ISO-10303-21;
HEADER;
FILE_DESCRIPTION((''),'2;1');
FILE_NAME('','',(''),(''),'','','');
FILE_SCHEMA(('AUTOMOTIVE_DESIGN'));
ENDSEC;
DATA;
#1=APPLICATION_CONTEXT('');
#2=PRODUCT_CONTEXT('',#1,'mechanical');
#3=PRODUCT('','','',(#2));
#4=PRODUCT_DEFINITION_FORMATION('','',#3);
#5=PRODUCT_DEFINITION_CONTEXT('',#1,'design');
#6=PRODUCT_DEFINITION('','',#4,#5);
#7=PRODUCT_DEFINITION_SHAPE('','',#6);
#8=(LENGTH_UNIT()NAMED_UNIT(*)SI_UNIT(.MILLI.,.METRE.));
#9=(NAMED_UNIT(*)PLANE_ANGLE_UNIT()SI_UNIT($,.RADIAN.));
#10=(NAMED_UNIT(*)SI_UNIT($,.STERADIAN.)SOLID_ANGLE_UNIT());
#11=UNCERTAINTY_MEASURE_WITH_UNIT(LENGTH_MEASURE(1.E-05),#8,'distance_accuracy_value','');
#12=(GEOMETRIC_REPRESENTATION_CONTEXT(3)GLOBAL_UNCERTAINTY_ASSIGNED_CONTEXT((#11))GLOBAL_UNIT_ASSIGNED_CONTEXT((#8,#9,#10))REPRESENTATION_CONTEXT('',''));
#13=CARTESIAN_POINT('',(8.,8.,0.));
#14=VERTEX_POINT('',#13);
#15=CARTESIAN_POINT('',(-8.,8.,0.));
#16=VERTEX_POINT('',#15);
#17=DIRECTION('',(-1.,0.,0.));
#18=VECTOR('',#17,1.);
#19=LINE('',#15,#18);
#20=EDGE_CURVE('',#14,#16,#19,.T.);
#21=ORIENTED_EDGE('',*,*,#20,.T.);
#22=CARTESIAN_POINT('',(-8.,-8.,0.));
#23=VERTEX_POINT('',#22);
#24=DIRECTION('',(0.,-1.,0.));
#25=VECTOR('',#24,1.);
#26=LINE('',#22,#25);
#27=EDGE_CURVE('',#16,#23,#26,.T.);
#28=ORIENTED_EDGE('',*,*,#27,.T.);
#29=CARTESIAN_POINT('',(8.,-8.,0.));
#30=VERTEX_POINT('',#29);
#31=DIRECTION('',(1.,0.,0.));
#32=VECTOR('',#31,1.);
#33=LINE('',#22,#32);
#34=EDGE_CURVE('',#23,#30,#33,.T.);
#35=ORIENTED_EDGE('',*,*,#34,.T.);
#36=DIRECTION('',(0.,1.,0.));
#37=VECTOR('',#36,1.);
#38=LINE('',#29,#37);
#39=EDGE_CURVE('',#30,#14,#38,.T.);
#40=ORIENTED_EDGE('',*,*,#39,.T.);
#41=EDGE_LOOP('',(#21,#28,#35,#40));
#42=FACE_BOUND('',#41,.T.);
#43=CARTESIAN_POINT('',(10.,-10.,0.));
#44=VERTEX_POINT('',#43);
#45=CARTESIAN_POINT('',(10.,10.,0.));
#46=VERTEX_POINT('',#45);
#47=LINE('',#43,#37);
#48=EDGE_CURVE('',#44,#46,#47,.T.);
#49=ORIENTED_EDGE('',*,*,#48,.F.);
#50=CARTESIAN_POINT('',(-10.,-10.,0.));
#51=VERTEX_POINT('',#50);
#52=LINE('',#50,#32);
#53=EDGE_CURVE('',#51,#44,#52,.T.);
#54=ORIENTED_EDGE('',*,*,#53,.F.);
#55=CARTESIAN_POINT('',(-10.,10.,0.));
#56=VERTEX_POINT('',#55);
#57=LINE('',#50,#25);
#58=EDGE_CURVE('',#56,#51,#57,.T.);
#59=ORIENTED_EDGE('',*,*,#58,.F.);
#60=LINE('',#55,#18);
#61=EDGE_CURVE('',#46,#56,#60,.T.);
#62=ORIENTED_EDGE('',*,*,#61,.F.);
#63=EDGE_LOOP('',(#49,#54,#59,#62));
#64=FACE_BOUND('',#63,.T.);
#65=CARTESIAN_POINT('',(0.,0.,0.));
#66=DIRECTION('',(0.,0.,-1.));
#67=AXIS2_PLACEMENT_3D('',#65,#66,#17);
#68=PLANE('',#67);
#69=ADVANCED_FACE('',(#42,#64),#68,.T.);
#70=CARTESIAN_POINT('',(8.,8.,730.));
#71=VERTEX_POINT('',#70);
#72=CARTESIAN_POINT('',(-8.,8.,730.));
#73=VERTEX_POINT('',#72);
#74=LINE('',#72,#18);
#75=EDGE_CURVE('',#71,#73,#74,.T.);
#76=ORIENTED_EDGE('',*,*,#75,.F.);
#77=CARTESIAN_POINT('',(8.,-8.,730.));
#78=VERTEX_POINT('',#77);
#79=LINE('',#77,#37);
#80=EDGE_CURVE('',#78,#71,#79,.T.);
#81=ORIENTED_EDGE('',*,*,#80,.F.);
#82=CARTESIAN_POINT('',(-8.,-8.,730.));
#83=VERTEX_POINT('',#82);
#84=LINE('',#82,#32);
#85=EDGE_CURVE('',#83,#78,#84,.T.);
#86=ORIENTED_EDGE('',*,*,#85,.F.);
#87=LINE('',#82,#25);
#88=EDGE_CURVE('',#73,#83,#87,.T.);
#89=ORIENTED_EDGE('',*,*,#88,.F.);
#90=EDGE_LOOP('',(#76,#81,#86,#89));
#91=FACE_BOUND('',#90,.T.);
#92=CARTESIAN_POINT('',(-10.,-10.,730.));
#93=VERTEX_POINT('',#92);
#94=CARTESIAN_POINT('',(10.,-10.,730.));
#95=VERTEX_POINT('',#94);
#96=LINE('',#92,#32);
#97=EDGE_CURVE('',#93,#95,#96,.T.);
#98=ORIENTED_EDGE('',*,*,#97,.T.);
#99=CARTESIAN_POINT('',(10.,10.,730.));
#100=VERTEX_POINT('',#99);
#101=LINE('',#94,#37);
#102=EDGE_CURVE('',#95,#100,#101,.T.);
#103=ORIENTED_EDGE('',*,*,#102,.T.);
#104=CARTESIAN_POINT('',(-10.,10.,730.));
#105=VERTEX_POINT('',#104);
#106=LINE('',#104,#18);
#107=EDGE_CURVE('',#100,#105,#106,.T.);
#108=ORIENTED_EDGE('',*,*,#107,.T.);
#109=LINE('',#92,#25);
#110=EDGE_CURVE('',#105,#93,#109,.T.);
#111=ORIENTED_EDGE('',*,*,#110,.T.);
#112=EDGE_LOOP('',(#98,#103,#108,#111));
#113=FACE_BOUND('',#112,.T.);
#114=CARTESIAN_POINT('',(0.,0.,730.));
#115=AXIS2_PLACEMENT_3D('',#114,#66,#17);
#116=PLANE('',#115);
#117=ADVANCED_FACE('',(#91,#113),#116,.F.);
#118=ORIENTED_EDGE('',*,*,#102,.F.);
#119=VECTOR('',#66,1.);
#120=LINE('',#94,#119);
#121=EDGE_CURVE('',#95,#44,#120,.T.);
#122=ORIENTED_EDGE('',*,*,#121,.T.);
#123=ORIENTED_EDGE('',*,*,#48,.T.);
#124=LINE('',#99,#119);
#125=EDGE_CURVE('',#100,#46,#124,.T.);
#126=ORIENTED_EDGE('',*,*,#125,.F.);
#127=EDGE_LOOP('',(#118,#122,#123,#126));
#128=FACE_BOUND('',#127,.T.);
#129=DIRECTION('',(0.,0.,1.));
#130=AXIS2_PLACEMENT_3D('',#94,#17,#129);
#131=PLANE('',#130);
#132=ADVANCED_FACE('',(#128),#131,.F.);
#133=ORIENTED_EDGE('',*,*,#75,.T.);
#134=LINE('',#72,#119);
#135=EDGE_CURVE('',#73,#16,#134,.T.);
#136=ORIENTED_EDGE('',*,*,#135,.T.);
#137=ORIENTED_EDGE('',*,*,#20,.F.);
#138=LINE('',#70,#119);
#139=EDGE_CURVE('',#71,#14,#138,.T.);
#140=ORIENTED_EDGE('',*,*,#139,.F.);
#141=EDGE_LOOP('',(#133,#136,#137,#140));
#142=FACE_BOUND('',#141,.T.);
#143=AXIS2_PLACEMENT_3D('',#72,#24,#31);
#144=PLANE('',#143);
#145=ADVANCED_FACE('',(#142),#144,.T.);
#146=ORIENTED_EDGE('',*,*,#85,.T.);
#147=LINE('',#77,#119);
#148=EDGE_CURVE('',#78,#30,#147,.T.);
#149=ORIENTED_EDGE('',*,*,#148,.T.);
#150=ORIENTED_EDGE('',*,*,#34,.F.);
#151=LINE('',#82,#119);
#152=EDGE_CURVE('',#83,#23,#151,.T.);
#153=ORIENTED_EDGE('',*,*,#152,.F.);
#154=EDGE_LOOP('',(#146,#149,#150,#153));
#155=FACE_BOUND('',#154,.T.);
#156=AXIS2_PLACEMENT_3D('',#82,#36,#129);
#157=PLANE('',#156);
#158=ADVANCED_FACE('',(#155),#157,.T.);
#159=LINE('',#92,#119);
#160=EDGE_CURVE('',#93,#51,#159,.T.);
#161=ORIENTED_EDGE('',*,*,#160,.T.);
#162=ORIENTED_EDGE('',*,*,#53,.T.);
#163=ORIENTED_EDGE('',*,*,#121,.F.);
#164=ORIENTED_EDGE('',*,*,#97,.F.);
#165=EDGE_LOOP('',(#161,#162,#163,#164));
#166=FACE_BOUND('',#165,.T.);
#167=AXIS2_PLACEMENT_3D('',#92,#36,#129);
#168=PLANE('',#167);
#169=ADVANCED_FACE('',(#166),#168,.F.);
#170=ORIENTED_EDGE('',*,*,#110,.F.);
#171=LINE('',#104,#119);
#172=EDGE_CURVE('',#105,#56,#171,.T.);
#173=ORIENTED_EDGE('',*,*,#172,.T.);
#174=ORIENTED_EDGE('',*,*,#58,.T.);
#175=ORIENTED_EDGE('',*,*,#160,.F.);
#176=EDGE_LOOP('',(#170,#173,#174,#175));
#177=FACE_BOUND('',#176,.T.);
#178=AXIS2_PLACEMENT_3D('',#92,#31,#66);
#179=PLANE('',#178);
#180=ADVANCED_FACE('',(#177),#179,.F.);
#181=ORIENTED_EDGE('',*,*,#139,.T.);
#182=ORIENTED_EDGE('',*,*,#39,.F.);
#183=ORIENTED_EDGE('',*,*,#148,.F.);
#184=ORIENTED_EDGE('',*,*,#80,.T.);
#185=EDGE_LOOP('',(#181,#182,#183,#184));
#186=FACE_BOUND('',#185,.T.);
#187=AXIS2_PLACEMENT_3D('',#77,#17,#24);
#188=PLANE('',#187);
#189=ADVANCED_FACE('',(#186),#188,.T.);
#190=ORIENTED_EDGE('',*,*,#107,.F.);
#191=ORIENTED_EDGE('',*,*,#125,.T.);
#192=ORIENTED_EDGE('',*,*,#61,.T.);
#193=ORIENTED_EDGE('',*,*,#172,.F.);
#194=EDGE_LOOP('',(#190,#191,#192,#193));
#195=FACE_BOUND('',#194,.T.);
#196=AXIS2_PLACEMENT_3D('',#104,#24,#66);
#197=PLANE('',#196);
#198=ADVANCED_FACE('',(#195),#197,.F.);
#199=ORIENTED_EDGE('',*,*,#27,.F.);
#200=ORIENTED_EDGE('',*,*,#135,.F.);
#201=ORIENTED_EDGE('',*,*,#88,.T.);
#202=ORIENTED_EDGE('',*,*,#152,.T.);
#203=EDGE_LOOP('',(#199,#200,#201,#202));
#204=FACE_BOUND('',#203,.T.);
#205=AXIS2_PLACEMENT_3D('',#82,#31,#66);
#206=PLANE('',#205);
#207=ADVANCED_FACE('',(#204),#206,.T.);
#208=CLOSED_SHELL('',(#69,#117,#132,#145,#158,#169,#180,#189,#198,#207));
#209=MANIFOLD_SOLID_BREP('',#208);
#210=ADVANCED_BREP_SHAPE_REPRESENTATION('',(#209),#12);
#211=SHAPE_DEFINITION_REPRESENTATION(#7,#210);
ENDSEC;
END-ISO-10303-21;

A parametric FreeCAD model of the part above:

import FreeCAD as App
import Part
import Sketcher

V = App.Vector


def add_polygon(sketch, points):
    """Adds a closed chain of lines whose ends are joined by coincident constraints."""
    first, n = sketch.GeometryCount, len(points)
    for a, b in zip(points, points[1:] + points[:1]):
        sketch.addGeometry(Part.LineSegment(App.Vector(*a, 0), App.Vector(*b, 0)), False)
    for i in range(n):
        sketch.addConstraint(Sketcher.Constraint("Coincident", first + i, 2, first + (i + 1) % n, 1))

doc = App.newDocument("Part")
params = doc.addObject("Spreadsheet::Sheet", "Params")
for row, (alias, value) in enumerate([
    ("sketch1_width", "20 mm"),
    ("sketch1_width2", "16 mm"),
    ("pad1_length", "730 mm"),
], start=1):
    params.set(f"A{row}", alias)
    params.set(f"B{row}", "=" + value)
    params.setAlias(f"B{row}", alias)

body = doc.addObject("PartDesign::Body", "Body")

sketch1 = doc.addObject("Sketcher::SketchObject", "Sketch")
body.addObject(sketch1)
sketch1.AttachmentSupport = (doc.XY_Plane, [""])
sketch1.MapMode = "FlatFace"
add_polygon(sketch1, [(-10, 10), (-10, -10), (10, -10), (10, 10)])
add_polygon(sketch1, [(8, -8), (-8, -8), (-8, 8), (8, 8)])
sketch1.addConstraint([
    Sketcher.Constraint("Vertical", 0),
    Sketcher.Constraint("Horizontal", 1),
    Sketcher.Constraint("Vertical", 2),
    Sketcher.Constraint("Horizontal", 3),
    Sketcher.Constraint("Horizontal", 4),
    Sketcher.Constraint("Vertical", 5),
    Sketcher.Constraint("Horizontal", 6),
    Sketcher.Constraint("Vertical", 7),
    Sketcher.Constraint("Symmetric", 0, 2, 2, 2, -1, 1),
    Sketcher.Constraint("Symmetric", 4, 2, 6, 2, -1, 1),
    Sketcher.Constraint("Equal", 3, 0),
    Sketcher.Constraint("Equal", 6, 5),
    Sketcher.Constraint("DistanceX", 1, 1, 1, 2, 20.0),
    Sketcher.Constraint("DistanceX", 4, 2, 4, 1, 16.0),
])
sketch1.setExpression("Constraints[20]", "Params.sketch1_width")
sketch1.setExpression("Constraints[21]", "Params.sketch1_width2")
pad1 = doc.addObject("PartDesign::Pad", "Pad")
body.addObject(pad1)
pad1.Profile = sketch1
pad1.setExpression("Length", "Params.pad1_length")

doc.recompute()
